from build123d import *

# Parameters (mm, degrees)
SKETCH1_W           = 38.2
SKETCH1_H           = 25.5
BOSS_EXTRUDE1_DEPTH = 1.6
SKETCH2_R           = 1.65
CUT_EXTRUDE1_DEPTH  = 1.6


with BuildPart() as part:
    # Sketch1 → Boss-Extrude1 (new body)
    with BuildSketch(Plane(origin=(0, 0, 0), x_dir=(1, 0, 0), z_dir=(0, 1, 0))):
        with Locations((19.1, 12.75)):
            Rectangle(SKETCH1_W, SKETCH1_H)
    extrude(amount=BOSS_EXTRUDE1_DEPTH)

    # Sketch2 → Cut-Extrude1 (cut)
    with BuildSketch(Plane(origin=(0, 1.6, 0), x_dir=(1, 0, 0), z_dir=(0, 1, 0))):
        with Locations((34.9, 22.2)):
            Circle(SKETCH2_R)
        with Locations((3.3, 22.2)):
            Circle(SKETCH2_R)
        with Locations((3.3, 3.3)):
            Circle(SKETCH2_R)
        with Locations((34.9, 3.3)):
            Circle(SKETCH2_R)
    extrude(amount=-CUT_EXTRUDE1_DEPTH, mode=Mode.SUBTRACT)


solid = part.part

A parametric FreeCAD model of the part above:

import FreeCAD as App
import Part
import Sketcher
from FreeCAD import Vector
Q = App.Units.Quantity

doc = App.newDocument("Part")
body = doc.addObject("PartDesign::Body", "Body")

# Sketch on XZ plane
sketch1 = body.newObject("Sketcher::SketchObject", "Sketch")
sketch1.AttachmentSupport = (doc.getObject("XZ_Plane"), [""])
sketch1.MapMode = "FlatFace"
sketch1.addGeometry([
    Part.LineSegment(Vector(0, -25.5, 0), Vector(0, 0, 0)),
    Part.LineSegment(Vector(0, 0, 0), Vector(38.2, 0, 0)),
    Part.LineSegment(Vector(38.2, 0, 0), Vector(38.2, -25.5, 0)),
    Part.LineSegment(Vector(38.2, -25.5, 0), Vector(0, -25.5, 0)),
], False)
sketch1.addConstraint([
    Sketcher.Constraint("Coincident", 0, 2, 1, 1),
    Sketcher.Constraint("Coincident", 1, 2, 2, 1),
    Sketcher.Constraint("Coincident", 2, 2, 3, 1),
    Sketcher.Constraint("Coincident", 3, 2, 0, 1),
    Sketcher.Constraint("Vertical", 0),
    Sketcher.Constraint("Horizontal", 1),
    Sketcher.Constraint("Vertical", 2),
    Sketcher.Constraint("Horizontal", 3),
    Sketcher.Constraint("Coincident", 0, 2, -1, 1),
    Sketcher.Constraint("DistanceX", 1, 1, 1, 2, Q("38.2 mm")),
    Sketcher.Constraint("DistanceY", 0, 1, 0, 2, Q("25.5 mm")),
])
pad1 = body.newObject("PartDesign::Pad", "Pad")
pad1.Profile = sketch1
pad1.Length = 1.6
pad1.Reversed = True

# Sketch on XZ plane
sketch2 = body.newObject("Sketcher::SketchObject", "Sketch001")
sketch2.AttachmentSupport = (doc.getObject("XZ_Plane"), [""])
sketch2.MapMode = "FlatFace"
sketch2.AttachmentOffset = App.Placement(Vector(0, 0, -1.6), App.Rotation())
sketch2.addGeometry([
    Part.Circle(Vector(34.9, -22.2, 0), Vector(0, 0, 1), 1.65),
    Part.Circle(Vector(3.3, -22.2, 0), Vector(0, 0, 1), 1.65),
    Part.Circle(Vector(3.3, -3.3, 0), Vector(0, 0, 1), 1.65),
    Part.Circle(Vector(34.9, -3.3, 0), Vector(0, 0, 1), 1.65),
], False)
sketch2.addConstraint([
    Sketcher.Constraint("Equal", 0, 1),
    Sketcher.Constraint("Equal", 1, 2),
    Sketcher.Constraint("Equal", 2, 3),
    Sketcher.Constraint("Horizontal", 0, 3, 1, 3),
    Sketcher.Constraint("Horizontal", 2, 3, 3, 3),
    Sketcher.Constraint("Vertical", 1, 3, 2, 3),
    Sketcher.Constraint("Vertical", 0, 3, 3, 3),
    Sketcher.Constraint("Diameter", 0, Q("3.3 mm")),
    Sketcher.Constraint("DistanceX", -1, 1, 0, 3, Q("34.9 mm")),
    Sketcher.Constraint("DistanceY", 0, 3, -1, 1, Q("22.2 mm")),
    Sketcher.Constraint("DistanceX", -1, 1, 1, 3, Q("3.3 mm")),
    Sketcher.Constraint("DistanceY", 2, 3, -1, 1, Q("3.3 mm")),
])
pocket1 = body.newObject("PartDesign::Pocket", "Pocket")
pocket1.Profile = sketch2
pocket1.Length = 1.6
pocket1.Reversed = True

doc.recompute()
